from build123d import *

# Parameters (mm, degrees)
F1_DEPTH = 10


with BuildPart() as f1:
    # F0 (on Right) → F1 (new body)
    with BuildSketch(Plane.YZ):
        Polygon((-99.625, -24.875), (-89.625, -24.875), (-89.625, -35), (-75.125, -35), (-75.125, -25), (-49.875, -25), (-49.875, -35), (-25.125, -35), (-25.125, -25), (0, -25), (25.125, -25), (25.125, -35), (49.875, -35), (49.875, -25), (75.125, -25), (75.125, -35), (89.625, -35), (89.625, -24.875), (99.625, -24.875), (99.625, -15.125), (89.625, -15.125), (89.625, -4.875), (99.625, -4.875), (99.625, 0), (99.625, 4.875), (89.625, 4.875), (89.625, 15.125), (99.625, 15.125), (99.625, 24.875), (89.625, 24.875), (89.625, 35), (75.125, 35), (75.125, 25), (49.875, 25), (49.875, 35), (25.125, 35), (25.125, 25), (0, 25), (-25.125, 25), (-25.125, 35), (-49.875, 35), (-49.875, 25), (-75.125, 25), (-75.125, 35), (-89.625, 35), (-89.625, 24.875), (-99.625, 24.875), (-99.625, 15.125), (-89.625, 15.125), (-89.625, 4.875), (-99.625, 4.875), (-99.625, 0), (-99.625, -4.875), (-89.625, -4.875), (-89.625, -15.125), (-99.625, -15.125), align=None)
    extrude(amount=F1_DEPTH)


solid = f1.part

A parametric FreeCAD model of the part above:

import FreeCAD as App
import Part
import Sketcher
from FreeCAD import Vector
Q = App.Units.Quantity


def add_polygon(sketch, points):
    """Adds a closed chain of lines whose ends are joined by coincident constraints."""
    first, n = sketch.GeometryCount, len(points)
    for a, b in zip(points, points[1:] + points[:1]):
        sketch.addGeometry(Part.LineSegment(App.Vector(*a, 0), App.Vector(*b, 0)), False)
    for i in range(n):
        sketch.addConstraint(Sketcher.Constraint("Coincident", first + i, 2, first + (i + 1) % n, 1))

doc = App.newDocument("Part")
params = doc.addObject("Spreadsheet::Sheet", "Params")
for row, (alias, value) in enumerate([
    ("sketch1_width", "10 mm"),
    ("sketch1_width2", "14.5 mm"),
    ("sketch1_width3", "25.25 mm"),
    ("sketch1_height", "9.75 mm"),
    ("pad1_length", "10 mm"),
], start=1):
    params.set(f"A{row}", alias)
    params.set(f"B{row}", "=" + value)
    params.setAlias(f"B{row}", alias)

body = doc.addObject("PartDesign::Body", "Body")

# Sketch on YZ plane
sketch1 = doc.addObject("Sketcher::SketchObject", "Sketch")
body.addObject(sketch1)
sketch1.AttachmentSupport = (doc.YZ_Plane, [""])
sketch1.MapMode = "FlatFace"
add_polygon(sketch1, [(-99.625, -24.875), (-89.625, -24.875), (-89.625, -35), (-75.125, -35), (-75.125, -25), (-49.875, -25), (-49.875, -35), (-25.125, -35), (-25.125, -25), (25.125, -25), (25.125, -35), (49.875, -35), (49.875, -25), (75.125, -25), (75.125, -35), (89.625, -35), (89.625, -24.875), (99.625, -24.875), (99.625, -15.125), (89.625, -15.125), (89.625, -4.875), (99.625, -4.875), (99.625, 4.875), (89.625, 4.875), (89.625, 15.125), (99.625, 15.125), (99.625, 24.875), (89.625, 24.875), (89.625, 35), (75.125, 35), (75.125, 25), (49.875, 25), (49.875, 35), (25.125, 35), (25.125, 25), (-25.125, 25), (-25.125, 35), (-49.875, 35), (-49.875, 25), (-75.125, 25), (-75.125, 35), (-89.625, 35), (-89.625, 24.875), (-99.625, 24.875), (-99.625, 15.125), (-89.625, 15.125), (-89.625, 4.875), (-99.625, 4.875), (-99.625, -4.875), (-89.625, -4.875), (-89.625, -15.125), (-99.625, -15.125)])  # lines 0-51
sketch1.addConstraint([
    Sketcher.Constraint("Horizontal", 0),
    Sketcher.Constraint("Vertical", 1),
    Sketcher.Constraint("Horizontal", 2),
    Sketcher.Constraint("Vertical", 3),
    Sketcher.Constraint("Horizontal", 4),
    Sketcher.Constraint("Vertical", 5),
    Sketcher.Constraint("Horizontal", 6),
    Sketcher.Constraint("Vertical", 7),
    Sketcher.Constraint("Horizontal", 8),
    Sketcher.Constraint("Vertical", 9),
    Sketcher.Constraint("Horizontal", 10),
    Sketcher.Constraint("Vertical", 11),
    Sketcher.Constraint("Horizontal", 12),
    Sketcher.Constraint("Vertical", 13),
    Sketcher.Constraint("Horizontal", 14),
    Sketcher.Constraint("Vertical", 15),
    Sketcher.Constraint("Horizontal", 16),
    Sketcher.Constraint("Vertical", 17),
    Sketcher.Constraint("Horizontal", 18),
    Sketcher.Constraint("Vertical", 19),
    Sketcher.Constraint("Horizontal", 20),
    Sketcher.Constraint("Vertical", 21),
    Sketcher.Constraint("Horizontal", 22),
    Sketcher.Constraint("Vertical", 23),
    Sketcher.Constraint("Horizontal", 24),
    Sketcher.Constraint("Vertical", 25),
    Sketcher.Constraint("Horizontal", 26),
    Sketcher.Constraint("Vertical", 27),
    Sketcher.Constraint("Horizontal", 28),
    Sketcher.Constraint("Vertical", 29),
    Sketcher.Constraint("Horizontal", 30),
    Sketcher.Constraint("Vertical", 31),
    Sketcher.Constraint("Horizontal", 32),
    Sketcher.Constraint("Vertical", 33),
    Sketcher.Constraint("Horizontal", 34),
    Sketcher.Constraint("Vertical", 35),
    Sketcher.Constraint("Horizontal", 36),
    Sketcher.Constraint("Vertical", 37),
    Sketcher.Constraint("Horizontal", 38),
    Sketcher.Constraint("Vertical", 39),
    Sketcher.Constraint("Horizontal", 40),
    Sketcher.Constraint("Vertical", 41),
    Sketcher.Constraint("Horizontal", 42),
    Sketcher.Constraint("Vertical", 43),
    Sketcher.Constraint("Horizontal", 44),
    Sketcher.Constraint("Vertical", 45),
    Sketcher.Constraint("Horizontal", 46),
    Sketcher.Constraint("Vertical", 47),
    Sketcher.Constraint("Horizontal", 48),
    Sketcher.Constraint("Vertical", 49),
    Sketcher.Constraint("Horizontal", 50),
    Sketcher.Constraint("Vertical", 51),
    Sketcher.Constraint("Symmetric", 0, 2, 26, 2, -1, 1),
    Sketcher.Constraint("Symmetric", 2, 2, 28, 2, -1, 1),
    Sketcher.Constraint("Symmetric", 4, 2, 30, 2, -1, 1),
    Sketcher.Constraint("Symmetric", 6, 2, 32, 2, -1, 1),
    Sketcher.Constraint("Symmetric", 8, 2, 34, 2, -1, 1),
    Sketcher.Constraint("Symmetric", 10, 2, 36, 2, -1, 1),
    Sketcher.Constraint("Symmetric", 12, 2, 38, 2, -1, 1),
    Sketcher.Constraint("Symmetric", 14, 2, 40, 2, -1, 1),
    Sketcher.Constraint("Symmetric", 16, 2, 42, 2, -1, 1),
    Sketcher.Constraint("Symmetric", 18, 2, 44, 2, -1, 1),
    Sketcher.Constraint("Symmetric", 20, 2, 46, 2, -1, 1),
    Sketcher.Constraint("Symmetric", 22, 2, 48, 2, -1, 1),
    Sketcher.Constraint("Symmetric", 24, 2, 50, 2, -1, 1),
    Sketcher.Constraint("Symmetric", 6, 2, 9, 2, -2),
    Sketcher.Constraint("Symmetric", 4, 2, 11, 2, -2),
    Sketcher.Constraint("Symmetric", 2, 2, 13, 2, -2),
    Sketcher.Constraint("Symmetric", 0, 2, 15, 2, -2),
    Sketcher.Constraint("Symmetric", 24, 2, 43, 2, -2),
    Sketcher.Constraint("Symmetric", 22, 2, 45, 2, -2),
    Sketcher.Constraint("Horizontal", 2, 2, 5, 2),
    Sketcher.Constraint("Horizontal", 4, 2, 7, 2),
    Sketcher.Constraint("Vertical", 15, 2, 18, 2),
    Sketcher.Constraint("Vertical", 17, 2, 20, 2),
    Sketcher.Constraint("Equal", 50, 3),
    Sketcher.Constraint("Equal", 17, 21),
    Sketcher.Constraint("DistanceX", 0, 1, 0, 2, Q("10 mm")),
    Sketcher.Constraint("DistanceX", 2, 1, 2, 2, Q("14.5 mm")),
    Sketcher.Constraint("DistanceY", 1, 2, -1, 1, Q("35 mm")),
    Sketcher.Constraint("DistanceX", 2, 2, 6, 2, Q("50 mm")),
    Sketcher.Constraint("DistanceX", 4, 2, 8, 2, Q("75 mm")),
    Sketcher.Constraint("DistanceY", 15, 2, 19, 2, Q("20 mm")),
    Sketcher.Constraint("DistanceX", 4, 1, 4, 2, Q("25.25 mm")),
    Sketcher.Constraint("DistanceY", 17, 1, 17, 2, Q("9.75 mm")),
])
sketch1.setExpression("Constraints[129]", "Params.sketch1_width")
sketch1.setExpression("Constraints[130]", "Params.sketch1_width2")
sketch1.setExpression("Constraints[135]", "Params.sketch1_width3")
sketch1.setExpression("Constraints[136]", "Params.sketch1_height")
pad1 = doc.addObject("PartDesign::Pad", "Pad")
body.addObject(pad1)
pad1.Profile = sketch1
pad1.setExpression("Length", "Params.pad1_length")

doc.recompute()
